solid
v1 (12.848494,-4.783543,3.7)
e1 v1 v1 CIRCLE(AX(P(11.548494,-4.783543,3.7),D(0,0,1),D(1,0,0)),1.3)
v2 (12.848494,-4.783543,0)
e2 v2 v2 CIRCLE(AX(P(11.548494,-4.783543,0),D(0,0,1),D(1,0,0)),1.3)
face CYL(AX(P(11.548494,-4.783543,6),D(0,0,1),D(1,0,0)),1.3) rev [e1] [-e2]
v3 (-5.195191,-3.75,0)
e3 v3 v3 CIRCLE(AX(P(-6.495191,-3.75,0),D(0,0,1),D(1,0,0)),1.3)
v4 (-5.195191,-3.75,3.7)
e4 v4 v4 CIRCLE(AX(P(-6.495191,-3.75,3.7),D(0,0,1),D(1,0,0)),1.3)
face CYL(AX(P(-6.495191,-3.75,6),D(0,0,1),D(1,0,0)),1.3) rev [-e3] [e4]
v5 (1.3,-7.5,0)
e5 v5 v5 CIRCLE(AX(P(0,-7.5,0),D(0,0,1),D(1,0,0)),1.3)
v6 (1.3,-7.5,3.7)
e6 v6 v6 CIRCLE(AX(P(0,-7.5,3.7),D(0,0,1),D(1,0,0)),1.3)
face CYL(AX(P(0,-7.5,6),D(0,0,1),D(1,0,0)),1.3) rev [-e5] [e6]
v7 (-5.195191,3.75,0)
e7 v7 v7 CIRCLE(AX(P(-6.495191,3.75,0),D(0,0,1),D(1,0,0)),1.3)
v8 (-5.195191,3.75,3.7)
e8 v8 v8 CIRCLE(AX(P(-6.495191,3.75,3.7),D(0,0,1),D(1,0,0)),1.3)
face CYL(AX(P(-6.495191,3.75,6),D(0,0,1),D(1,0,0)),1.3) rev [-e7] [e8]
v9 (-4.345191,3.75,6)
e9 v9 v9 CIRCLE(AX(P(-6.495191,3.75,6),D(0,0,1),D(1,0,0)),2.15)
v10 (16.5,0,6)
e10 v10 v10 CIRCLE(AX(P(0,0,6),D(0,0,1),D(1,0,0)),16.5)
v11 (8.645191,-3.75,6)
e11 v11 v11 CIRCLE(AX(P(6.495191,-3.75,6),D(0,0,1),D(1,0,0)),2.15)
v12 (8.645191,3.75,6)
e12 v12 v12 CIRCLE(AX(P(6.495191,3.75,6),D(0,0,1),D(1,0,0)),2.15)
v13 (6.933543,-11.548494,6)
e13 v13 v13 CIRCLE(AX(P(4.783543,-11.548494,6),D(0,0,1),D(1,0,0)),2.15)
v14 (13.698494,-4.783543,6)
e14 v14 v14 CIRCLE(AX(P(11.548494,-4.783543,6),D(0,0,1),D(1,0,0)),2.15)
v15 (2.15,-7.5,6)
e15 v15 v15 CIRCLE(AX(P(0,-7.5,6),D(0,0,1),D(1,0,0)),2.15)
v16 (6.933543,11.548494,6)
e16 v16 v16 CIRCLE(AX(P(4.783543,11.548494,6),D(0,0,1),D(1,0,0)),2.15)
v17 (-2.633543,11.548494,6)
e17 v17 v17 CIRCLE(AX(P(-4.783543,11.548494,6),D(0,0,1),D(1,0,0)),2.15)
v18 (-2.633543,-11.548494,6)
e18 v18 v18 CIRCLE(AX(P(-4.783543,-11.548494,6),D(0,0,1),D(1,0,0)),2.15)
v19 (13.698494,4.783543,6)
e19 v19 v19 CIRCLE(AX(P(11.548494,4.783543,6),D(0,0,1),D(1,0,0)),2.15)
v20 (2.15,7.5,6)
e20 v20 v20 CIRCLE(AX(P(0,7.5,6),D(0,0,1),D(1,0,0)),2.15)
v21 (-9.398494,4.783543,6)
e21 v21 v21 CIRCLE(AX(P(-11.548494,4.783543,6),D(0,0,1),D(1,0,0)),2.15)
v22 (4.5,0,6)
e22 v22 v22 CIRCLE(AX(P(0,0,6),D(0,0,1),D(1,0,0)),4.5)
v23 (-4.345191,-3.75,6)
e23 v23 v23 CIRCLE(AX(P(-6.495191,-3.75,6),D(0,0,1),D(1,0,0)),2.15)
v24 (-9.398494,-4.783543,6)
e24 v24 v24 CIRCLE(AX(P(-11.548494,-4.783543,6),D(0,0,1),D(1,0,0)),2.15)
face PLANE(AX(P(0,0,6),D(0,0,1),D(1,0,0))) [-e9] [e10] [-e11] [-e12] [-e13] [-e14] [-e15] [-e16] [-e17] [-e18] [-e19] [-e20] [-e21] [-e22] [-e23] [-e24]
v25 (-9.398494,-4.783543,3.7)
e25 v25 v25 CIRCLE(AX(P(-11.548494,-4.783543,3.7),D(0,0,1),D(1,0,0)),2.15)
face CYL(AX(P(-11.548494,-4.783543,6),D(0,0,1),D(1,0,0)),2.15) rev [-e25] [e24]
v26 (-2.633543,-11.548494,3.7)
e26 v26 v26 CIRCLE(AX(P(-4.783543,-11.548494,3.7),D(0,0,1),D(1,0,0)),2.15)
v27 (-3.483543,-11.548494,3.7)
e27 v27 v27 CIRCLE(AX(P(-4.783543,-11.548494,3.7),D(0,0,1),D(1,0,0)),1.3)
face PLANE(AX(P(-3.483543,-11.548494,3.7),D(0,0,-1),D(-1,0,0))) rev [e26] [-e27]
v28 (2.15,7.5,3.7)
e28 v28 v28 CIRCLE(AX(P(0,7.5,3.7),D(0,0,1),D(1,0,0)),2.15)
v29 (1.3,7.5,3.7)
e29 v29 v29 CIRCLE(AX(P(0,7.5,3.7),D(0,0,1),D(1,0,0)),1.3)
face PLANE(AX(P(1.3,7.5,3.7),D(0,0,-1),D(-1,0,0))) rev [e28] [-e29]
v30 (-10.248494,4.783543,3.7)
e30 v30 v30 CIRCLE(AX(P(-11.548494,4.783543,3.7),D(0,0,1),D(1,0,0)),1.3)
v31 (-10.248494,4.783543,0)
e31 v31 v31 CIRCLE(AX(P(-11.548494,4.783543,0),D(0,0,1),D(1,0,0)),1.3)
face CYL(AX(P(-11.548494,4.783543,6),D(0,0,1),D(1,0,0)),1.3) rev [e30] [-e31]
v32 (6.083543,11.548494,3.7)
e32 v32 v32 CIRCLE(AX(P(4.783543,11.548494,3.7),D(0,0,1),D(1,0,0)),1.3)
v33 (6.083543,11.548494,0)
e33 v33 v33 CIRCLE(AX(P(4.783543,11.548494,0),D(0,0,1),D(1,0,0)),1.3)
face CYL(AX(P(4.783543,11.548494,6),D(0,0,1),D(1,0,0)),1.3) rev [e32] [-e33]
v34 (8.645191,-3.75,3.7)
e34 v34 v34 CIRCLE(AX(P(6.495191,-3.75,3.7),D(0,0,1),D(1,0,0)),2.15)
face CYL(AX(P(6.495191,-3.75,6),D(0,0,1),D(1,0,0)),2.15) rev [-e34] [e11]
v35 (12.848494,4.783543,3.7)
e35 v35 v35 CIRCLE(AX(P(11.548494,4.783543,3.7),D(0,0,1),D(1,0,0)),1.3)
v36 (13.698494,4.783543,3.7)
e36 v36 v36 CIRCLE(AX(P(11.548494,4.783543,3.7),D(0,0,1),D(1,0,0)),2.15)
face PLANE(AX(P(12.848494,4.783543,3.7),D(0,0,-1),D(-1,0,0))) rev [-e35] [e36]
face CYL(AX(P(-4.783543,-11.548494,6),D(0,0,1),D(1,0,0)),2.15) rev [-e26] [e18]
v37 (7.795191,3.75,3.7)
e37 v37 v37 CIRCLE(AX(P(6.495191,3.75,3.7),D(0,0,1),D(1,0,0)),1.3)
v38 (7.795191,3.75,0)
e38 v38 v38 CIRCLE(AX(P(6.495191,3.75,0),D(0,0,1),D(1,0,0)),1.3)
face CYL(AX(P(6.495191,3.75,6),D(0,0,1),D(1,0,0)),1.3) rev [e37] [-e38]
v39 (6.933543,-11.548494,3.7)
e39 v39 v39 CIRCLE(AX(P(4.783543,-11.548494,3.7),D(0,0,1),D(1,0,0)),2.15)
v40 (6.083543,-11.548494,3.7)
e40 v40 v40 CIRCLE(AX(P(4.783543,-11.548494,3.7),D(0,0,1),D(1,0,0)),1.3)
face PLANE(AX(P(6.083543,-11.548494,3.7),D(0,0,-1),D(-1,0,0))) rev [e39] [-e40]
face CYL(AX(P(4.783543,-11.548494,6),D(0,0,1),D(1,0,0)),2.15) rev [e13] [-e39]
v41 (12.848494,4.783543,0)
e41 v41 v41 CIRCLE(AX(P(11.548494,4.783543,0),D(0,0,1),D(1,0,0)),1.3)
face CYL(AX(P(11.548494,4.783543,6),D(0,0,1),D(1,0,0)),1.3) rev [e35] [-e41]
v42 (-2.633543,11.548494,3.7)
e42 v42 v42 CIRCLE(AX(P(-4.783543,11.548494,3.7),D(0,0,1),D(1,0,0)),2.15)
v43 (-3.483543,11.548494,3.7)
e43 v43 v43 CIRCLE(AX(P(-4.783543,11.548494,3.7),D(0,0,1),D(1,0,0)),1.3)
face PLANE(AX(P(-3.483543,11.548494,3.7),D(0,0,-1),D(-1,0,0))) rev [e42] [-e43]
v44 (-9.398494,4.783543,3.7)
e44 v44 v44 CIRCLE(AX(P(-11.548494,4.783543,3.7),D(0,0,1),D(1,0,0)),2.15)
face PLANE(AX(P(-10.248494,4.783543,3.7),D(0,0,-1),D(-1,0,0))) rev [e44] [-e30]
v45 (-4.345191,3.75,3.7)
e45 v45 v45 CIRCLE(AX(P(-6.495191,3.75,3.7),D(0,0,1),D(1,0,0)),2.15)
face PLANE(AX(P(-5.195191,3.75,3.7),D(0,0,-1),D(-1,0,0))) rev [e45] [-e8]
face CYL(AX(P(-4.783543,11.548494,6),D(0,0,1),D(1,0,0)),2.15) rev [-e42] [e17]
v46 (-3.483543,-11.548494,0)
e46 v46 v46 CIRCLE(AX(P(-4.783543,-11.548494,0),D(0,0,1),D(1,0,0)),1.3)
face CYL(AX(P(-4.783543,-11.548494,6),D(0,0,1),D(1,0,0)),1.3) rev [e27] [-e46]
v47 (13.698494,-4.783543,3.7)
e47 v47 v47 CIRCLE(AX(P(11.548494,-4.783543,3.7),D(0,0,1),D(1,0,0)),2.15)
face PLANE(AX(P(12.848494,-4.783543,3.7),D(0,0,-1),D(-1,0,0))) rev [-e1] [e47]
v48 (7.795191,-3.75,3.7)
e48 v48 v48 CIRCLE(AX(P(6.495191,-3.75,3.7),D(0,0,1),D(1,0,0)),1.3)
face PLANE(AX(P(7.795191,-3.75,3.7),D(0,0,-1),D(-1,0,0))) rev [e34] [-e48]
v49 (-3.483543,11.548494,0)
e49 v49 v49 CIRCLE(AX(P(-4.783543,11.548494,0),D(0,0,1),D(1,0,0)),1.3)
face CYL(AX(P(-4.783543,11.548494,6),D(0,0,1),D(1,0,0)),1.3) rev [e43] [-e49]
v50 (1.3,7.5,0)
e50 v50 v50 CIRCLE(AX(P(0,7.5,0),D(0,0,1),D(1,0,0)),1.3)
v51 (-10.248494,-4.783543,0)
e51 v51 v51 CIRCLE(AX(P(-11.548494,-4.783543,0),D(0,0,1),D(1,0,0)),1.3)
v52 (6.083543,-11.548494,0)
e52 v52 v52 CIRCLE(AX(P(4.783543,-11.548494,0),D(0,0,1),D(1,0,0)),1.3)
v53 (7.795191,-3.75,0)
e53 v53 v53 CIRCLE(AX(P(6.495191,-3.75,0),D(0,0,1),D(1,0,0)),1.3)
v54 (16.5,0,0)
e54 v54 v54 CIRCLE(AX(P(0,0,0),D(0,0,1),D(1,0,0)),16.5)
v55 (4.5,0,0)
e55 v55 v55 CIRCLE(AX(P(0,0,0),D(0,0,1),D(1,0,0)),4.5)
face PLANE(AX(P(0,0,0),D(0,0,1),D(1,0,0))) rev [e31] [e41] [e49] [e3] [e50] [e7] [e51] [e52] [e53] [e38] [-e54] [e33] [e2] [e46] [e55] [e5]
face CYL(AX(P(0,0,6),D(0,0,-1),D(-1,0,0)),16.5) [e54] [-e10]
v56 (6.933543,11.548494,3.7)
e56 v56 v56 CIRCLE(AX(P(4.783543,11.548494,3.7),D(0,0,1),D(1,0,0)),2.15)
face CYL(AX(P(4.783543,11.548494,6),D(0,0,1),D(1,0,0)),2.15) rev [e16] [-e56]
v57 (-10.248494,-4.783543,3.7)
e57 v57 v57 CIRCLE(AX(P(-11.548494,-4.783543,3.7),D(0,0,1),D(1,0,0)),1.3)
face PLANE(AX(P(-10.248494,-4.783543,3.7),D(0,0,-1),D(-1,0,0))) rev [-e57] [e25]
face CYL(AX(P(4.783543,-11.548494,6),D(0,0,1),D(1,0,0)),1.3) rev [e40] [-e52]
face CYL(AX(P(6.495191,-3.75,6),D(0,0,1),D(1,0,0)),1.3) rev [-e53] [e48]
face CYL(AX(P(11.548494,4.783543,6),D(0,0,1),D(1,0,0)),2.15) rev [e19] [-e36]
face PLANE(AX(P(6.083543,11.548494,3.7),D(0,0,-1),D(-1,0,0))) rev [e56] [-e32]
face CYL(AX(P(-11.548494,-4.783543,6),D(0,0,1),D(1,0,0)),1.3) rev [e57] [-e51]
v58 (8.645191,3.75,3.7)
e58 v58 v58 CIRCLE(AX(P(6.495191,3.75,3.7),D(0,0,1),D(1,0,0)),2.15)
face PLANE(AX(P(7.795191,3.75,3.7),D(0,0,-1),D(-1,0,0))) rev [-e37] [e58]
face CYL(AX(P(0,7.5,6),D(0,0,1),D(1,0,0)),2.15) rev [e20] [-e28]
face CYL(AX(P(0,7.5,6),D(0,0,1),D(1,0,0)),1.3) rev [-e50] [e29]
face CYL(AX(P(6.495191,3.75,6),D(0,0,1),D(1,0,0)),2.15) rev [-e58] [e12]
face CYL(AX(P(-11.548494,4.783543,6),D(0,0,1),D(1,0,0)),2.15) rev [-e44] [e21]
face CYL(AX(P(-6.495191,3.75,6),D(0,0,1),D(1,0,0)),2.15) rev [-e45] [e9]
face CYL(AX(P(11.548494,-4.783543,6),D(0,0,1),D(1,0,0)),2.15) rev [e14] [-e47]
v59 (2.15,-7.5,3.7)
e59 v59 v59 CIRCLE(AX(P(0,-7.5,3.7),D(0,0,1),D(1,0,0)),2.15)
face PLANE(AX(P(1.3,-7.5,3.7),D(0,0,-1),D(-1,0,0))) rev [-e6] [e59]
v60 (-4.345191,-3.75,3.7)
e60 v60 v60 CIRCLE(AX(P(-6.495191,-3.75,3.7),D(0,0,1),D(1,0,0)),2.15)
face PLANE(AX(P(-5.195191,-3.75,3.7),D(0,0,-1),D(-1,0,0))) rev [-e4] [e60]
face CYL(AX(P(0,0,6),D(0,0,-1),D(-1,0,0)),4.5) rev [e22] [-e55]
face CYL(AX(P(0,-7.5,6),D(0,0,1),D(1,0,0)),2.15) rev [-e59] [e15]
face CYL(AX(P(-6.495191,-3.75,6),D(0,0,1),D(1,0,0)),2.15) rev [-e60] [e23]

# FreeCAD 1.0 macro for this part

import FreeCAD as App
import Part
import Sketcher
Q = App.Units.Quantity

doc = App.newDocument("Part")
body = doc.addObject("PartDesign::Body", "Body")

sketch1 = body.newObject("Sketcher::SketchObject", "Sketch")
sketch1.AttachmentSupport = (doc.getObject("XY_Plane"), [""])
sketch1.MapMode = "FlatFace"
sketch1.addGeometry(Part.Circle(App.Vector(0, 0, 0), App.Vector(0, 0, 1), 16.5), False)
sketch1.addGeometry(Part.Circle(App.Vector(0, 0, 0), App.Vector(0, 0, 1), 4.5), False)
sketch1.addConstraint(Sketcher.Constraint("Coincident", 0, 3, -1, 1))
sketch1.addConstraint(Sketcher.Constraint("Coincident", 1, 3, -1, 1))
sketch1.addConstraint(Sketcher.Constraint("Diameter", 0, Q("33 mm")))
sketch1.addConstraint(Sketcher.Constraint("Diameter", 1, Q("9 mm")))
pad1 = body.newObject("PartDesign::Pad", "Pad")
pad1.Profile = sketch1
pad1.Length = 6

sketch2 = body.newObject("Sketcher::SketchObject", "Sketch001")
sketch2.AttachmentSupport = (doc.getObject("XY_Plane"), [""])
sketch2.MapMode = "FlatFace"
sketch2.AttachmentOffset = App.Placement(App.Vector(0, 0, 6), App.Rotation())
sketch2.addGeometry(Part.Circle(App.Vector(0, 7.5, 0), App.Vector(0, 0, 1), 1.3), False)
sketch2.addConstraint(Sketcher.Constraint("PointOnObject", 0, 3, -2))
sketch2.addConstraint(Sketcher.Constraint("Diameter", 0, Q("2.6 mm")))
sketch2.addConstraint(Sketcher.Constraint("DistanceY", -1, 1, 0, 3, Q("7.5 mm")))
doc.recompute()
hole = body.newObject("PartDesign::Hole", "Hole")
hole.Profile = sketch2
hole.ThreadType = "None"
hole.Diameter = 2.6
hole.DepthType = "ThroughAll"
hole.HoleCutType = "Counterbore"
hole.HoleCutDiameter = 4.3
hole.HoleCutDepth = 2.3
doc.recompute()

polarpattern = body.newObject("PartDesign::PolarPattern", "PolarPattern")
polarpattern.Originals = [hole]
polarpattern.Axis = (doc.getObject("Z_Axis"), [""])
polarpattern.Angle = 360
polarpattern.Occurrences = 6
body.Tip = polarpattern

sketch3 = body.newObject("Sketcher::SketchObject", "Sketch002")
sketch3.AttachmentSupport = (doc.getObject("XY_Plane"), [""])
sketch3.MapMode = "FlatFace"
sketch3.AttachmentOffset = App.Placement(App.Vector(0, 0, 6), App.Rotation())
sketch3.addGeometry(Part.Circle(App.Vector(-4.8, 11.5, 0), App.Vector(0, 0, 1), 1.3), False)
sketch3.addConstraint(Sketcher.Constraint("Diameter", 0, Q("2.6 mm")))
sketch3.addConstraint(Sketcher.Constraint("DistanceX", 0, 3, -1, 1, Q("4.783543 mm")))
sketch3.addConstraint(Sketcher.Constraint("DistanceY", -1, 1, 0, 3, Q("11.548494 mm")))
doc.recompute()
hole2 = body.newObject("PartDesign::Hole", "Hole001")
hole2.Profile = sketch3
hole2.ThreadType = "None"
hole2.Diameter = 2.6
hole2.DepthType = "ThroughAll"
hole2.HoleCutType = "Counterbore"
hole2.HoleCutDiameter = 4.3
hole2.HoleCutDepth = 2.3
doc.recompute()

polarpattern2 = body.newObject("PartDesign::PolarPattern", "PolarPattern001")
polarpattern2.Originals = [hole2]
polarpattern2.Axis = (doc.getObject("Z_Axis"), [""])
polarpattern2.Angle = 360
polarpattern2.Occurrences = 8
body.Tip = polarpattern2

doc.recompute()
